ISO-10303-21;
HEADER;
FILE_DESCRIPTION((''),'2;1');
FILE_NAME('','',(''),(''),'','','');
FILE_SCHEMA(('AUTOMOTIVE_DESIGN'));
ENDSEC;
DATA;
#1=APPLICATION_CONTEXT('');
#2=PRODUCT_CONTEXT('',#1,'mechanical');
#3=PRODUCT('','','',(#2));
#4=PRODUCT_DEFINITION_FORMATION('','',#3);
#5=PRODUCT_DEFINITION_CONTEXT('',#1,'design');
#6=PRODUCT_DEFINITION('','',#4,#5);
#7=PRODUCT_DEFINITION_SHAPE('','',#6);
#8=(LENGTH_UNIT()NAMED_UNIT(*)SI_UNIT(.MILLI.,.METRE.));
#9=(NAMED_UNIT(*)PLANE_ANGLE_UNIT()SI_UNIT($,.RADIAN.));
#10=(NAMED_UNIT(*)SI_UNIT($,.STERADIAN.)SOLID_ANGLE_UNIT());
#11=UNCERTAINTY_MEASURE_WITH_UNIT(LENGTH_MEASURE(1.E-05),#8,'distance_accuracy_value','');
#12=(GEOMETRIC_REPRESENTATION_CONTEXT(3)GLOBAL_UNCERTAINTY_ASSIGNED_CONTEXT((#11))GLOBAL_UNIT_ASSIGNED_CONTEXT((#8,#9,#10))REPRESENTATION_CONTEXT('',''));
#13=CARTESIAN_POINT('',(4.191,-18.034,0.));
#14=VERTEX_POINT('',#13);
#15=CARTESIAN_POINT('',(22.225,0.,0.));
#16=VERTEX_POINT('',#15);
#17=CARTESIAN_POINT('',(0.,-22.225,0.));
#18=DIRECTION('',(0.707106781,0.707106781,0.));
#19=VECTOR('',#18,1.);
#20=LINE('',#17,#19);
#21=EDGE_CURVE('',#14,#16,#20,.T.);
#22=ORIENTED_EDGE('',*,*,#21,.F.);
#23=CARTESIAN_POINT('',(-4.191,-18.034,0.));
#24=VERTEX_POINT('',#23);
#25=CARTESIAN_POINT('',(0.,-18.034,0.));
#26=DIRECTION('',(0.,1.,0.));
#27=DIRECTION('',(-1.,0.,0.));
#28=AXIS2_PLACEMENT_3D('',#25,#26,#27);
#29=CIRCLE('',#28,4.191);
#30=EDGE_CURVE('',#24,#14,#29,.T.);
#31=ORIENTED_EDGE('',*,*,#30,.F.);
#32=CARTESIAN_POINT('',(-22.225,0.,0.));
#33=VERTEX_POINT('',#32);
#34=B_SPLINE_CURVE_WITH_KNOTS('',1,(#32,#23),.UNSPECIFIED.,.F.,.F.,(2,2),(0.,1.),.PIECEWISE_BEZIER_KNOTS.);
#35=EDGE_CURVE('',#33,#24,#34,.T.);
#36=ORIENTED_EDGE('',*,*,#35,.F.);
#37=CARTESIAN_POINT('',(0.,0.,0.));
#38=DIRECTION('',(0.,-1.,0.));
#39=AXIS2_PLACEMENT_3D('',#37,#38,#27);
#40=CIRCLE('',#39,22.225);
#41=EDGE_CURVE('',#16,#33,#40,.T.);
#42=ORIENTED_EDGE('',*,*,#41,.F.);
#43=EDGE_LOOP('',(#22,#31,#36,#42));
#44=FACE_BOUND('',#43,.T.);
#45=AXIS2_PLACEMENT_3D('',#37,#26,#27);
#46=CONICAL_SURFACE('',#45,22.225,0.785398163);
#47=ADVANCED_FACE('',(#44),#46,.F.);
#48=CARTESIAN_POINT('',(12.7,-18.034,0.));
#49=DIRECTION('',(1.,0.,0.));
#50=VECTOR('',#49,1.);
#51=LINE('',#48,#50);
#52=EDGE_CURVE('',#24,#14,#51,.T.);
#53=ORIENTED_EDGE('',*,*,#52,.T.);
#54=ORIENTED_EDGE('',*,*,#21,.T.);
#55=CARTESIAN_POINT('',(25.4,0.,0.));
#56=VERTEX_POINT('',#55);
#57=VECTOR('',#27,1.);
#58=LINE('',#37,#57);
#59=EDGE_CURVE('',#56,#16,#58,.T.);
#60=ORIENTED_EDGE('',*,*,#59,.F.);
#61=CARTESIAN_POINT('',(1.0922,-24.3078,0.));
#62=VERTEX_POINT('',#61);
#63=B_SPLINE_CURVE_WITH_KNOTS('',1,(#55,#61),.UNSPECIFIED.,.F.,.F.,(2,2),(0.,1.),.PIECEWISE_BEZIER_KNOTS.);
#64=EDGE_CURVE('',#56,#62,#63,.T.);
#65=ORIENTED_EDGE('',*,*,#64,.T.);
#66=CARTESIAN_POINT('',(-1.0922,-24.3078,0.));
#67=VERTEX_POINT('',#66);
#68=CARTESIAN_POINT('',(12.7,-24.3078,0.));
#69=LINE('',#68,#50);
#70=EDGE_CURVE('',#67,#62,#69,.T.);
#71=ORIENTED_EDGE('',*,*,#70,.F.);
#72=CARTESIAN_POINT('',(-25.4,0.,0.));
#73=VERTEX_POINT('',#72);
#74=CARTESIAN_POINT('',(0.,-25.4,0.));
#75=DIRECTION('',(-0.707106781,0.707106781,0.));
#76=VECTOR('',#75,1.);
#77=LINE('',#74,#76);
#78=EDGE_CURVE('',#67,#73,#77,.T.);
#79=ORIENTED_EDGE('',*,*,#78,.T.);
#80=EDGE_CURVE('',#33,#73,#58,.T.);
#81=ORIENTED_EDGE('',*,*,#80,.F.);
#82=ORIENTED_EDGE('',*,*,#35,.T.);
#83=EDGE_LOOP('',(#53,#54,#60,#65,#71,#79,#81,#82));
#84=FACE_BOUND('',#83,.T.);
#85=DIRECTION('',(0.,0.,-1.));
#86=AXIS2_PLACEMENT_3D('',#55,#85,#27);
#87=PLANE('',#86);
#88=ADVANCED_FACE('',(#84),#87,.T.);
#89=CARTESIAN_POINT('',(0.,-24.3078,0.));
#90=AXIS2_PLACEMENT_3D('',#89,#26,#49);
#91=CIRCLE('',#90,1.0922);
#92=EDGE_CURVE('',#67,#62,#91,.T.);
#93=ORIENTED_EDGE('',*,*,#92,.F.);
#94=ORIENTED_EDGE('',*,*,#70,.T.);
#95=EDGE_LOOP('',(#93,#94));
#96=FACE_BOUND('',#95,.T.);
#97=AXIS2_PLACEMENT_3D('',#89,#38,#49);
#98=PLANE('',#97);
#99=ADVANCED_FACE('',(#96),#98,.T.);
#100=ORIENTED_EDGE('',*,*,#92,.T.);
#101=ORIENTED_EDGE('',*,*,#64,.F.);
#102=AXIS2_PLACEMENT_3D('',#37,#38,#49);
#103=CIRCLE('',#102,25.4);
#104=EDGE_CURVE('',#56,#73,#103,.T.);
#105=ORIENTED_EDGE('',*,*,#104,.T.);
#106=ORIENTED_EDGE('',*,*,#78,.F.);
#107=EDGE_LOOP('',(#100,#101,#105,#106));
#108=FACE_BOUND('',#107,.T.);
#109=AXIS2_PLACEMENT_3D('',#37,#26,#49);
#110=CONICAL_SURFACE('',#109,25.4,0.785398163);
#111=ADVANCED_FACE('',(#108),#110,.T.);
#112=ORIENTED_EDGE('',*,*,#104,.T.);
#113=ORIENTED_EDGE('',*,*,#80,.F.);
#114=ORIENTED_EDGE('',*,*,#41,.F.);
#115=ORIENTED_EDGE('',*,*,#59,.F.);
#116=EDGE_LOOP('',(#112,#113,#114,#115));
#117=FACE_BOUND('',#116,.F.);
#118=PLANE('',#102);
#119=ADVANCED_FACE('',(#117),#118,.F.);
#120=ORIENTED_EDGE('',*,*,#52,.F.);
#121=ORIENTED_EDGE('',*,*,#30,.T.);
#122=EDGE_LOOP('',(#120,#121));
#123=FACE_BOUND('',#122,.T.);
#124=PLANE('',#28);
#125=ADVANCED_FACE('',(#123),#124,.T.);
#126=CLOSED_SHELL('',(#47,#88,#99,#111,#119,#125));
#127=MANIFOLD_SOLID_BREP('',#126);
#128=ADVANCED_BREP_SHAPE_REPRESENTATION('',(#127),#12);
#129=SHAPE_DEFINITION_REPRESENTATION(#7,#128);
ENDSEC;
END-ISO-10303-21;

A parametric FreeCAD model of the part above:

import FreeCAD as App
import Part
import Sketcher

V = App.Vector
Q = App.Units.Quantity


def add_polygon(sketch, points):
    """Adds a closed chain of lines whose ends are joined by coincident constraints."""
    first, n = sketch.GeometryCount, len(points)
    for a, b in zip(points, points[1:] + points[:1]):
        sketch.addGeometry(Part.LineSegment(App.Vector(*a, 0), App.Vector(*b, 0)), False)
    for i in range(n):
        sketch.addConstraint(Sketcher.Constraint("Coincident", first + i, 2, first + (i + 1) % n, 1))

doc = App.newDocument("Part")
body = doc.addObject("PartDesign::Body", "Body")

# Sketch on XZ plane
sketch1 = body.newObject("Sketcher::SketchObject", "Sketch")
sketch1.AttachmentSupport = (doc.getObject("XZ_Plane"), [""])
sketch1.MapMode = "FlatFace"
sketch1.addGeometry(Part.Circle(V(0, 0, 0), V(0, 0, 1), 25.4), False)
sketch1.addConstraint([
    Sketcher.Constraint("Coincident", 0, 3, -1, 1),
    Sketcher.Constraint("Diameter", 0, Q("2 in")),
])
pad1 = body.newObject("PartDesign::Pad", "Pad")
pad1.Profile = sketch1
pad1.Length = Q("0.957 in")
pad1.TaperAngle = -45

# Sketch on XZ plane
sketch2 = body.newObject("Sketcher::SketchObject", "Sketch001")
sketch2.AttachmentSupport = (doc.getObject("XZ_Plane"), [""])
sketch2.MapMode = "FlatFace"
add_polygon(sketch2, [(25.4, 0), (25.4, -26.164407), (-25.4, -26.164407), (-25.4, 0)])  # lines 0-3
sketch2.addConstraint([
    Sketcher.Constraint("Vertical", 0),
    Sketcher.Constraint("Horizontal", 1),
    Sketcher.Constraint("Vertical", 2),
    Sketcher.Constraint("Horizontal", 3),
    Sketcher.Constraint("Symmetric", 2, 2, 3, 2, -1, 1),
    Sketcher.Constraint("DistanceX", 1, 2, 1, 1, Q("2 in")),
    Sketcher.Constraint("DistanceY", 0, 2, 0, 1, Q("26.164407 mm")),
])
pocket1 = body.newObject("PartDesign::Pocket", "Pocket")
pocket1.Profile = sketch2
pocket1.Length = Q("1.12 in")
pocket1.Reversed = True

# Sketch on XZ plane
sketch3 = body.newObject("Sketcher::SketchObject", "Sketch002")
sketch3.AttachmentSupport = (doc.getObject("XZ_Plane"), [""])
sketch3.MapMode = "FlatFace"
sketch3.addGeometry(Part.Circle(V(0, 0, 0), V(0, 0, 1), 22.225), False)
sketch3.addConstraint([
    Sketcher.Constraint("Coincident", 0, 3, -1, 1),
    Sketcher.Constraint("Diameter", 0, Q("1.75 in")),
])
pocket2 = body.newObject("PartDesign::Pocket", "Pocket001")
pocket2.Profile = sketch3
pocket2.Length = Q("0.71 in")
pocket2.Reversed = True
pocket2.TaperAngle = -45

doc.recompute()
